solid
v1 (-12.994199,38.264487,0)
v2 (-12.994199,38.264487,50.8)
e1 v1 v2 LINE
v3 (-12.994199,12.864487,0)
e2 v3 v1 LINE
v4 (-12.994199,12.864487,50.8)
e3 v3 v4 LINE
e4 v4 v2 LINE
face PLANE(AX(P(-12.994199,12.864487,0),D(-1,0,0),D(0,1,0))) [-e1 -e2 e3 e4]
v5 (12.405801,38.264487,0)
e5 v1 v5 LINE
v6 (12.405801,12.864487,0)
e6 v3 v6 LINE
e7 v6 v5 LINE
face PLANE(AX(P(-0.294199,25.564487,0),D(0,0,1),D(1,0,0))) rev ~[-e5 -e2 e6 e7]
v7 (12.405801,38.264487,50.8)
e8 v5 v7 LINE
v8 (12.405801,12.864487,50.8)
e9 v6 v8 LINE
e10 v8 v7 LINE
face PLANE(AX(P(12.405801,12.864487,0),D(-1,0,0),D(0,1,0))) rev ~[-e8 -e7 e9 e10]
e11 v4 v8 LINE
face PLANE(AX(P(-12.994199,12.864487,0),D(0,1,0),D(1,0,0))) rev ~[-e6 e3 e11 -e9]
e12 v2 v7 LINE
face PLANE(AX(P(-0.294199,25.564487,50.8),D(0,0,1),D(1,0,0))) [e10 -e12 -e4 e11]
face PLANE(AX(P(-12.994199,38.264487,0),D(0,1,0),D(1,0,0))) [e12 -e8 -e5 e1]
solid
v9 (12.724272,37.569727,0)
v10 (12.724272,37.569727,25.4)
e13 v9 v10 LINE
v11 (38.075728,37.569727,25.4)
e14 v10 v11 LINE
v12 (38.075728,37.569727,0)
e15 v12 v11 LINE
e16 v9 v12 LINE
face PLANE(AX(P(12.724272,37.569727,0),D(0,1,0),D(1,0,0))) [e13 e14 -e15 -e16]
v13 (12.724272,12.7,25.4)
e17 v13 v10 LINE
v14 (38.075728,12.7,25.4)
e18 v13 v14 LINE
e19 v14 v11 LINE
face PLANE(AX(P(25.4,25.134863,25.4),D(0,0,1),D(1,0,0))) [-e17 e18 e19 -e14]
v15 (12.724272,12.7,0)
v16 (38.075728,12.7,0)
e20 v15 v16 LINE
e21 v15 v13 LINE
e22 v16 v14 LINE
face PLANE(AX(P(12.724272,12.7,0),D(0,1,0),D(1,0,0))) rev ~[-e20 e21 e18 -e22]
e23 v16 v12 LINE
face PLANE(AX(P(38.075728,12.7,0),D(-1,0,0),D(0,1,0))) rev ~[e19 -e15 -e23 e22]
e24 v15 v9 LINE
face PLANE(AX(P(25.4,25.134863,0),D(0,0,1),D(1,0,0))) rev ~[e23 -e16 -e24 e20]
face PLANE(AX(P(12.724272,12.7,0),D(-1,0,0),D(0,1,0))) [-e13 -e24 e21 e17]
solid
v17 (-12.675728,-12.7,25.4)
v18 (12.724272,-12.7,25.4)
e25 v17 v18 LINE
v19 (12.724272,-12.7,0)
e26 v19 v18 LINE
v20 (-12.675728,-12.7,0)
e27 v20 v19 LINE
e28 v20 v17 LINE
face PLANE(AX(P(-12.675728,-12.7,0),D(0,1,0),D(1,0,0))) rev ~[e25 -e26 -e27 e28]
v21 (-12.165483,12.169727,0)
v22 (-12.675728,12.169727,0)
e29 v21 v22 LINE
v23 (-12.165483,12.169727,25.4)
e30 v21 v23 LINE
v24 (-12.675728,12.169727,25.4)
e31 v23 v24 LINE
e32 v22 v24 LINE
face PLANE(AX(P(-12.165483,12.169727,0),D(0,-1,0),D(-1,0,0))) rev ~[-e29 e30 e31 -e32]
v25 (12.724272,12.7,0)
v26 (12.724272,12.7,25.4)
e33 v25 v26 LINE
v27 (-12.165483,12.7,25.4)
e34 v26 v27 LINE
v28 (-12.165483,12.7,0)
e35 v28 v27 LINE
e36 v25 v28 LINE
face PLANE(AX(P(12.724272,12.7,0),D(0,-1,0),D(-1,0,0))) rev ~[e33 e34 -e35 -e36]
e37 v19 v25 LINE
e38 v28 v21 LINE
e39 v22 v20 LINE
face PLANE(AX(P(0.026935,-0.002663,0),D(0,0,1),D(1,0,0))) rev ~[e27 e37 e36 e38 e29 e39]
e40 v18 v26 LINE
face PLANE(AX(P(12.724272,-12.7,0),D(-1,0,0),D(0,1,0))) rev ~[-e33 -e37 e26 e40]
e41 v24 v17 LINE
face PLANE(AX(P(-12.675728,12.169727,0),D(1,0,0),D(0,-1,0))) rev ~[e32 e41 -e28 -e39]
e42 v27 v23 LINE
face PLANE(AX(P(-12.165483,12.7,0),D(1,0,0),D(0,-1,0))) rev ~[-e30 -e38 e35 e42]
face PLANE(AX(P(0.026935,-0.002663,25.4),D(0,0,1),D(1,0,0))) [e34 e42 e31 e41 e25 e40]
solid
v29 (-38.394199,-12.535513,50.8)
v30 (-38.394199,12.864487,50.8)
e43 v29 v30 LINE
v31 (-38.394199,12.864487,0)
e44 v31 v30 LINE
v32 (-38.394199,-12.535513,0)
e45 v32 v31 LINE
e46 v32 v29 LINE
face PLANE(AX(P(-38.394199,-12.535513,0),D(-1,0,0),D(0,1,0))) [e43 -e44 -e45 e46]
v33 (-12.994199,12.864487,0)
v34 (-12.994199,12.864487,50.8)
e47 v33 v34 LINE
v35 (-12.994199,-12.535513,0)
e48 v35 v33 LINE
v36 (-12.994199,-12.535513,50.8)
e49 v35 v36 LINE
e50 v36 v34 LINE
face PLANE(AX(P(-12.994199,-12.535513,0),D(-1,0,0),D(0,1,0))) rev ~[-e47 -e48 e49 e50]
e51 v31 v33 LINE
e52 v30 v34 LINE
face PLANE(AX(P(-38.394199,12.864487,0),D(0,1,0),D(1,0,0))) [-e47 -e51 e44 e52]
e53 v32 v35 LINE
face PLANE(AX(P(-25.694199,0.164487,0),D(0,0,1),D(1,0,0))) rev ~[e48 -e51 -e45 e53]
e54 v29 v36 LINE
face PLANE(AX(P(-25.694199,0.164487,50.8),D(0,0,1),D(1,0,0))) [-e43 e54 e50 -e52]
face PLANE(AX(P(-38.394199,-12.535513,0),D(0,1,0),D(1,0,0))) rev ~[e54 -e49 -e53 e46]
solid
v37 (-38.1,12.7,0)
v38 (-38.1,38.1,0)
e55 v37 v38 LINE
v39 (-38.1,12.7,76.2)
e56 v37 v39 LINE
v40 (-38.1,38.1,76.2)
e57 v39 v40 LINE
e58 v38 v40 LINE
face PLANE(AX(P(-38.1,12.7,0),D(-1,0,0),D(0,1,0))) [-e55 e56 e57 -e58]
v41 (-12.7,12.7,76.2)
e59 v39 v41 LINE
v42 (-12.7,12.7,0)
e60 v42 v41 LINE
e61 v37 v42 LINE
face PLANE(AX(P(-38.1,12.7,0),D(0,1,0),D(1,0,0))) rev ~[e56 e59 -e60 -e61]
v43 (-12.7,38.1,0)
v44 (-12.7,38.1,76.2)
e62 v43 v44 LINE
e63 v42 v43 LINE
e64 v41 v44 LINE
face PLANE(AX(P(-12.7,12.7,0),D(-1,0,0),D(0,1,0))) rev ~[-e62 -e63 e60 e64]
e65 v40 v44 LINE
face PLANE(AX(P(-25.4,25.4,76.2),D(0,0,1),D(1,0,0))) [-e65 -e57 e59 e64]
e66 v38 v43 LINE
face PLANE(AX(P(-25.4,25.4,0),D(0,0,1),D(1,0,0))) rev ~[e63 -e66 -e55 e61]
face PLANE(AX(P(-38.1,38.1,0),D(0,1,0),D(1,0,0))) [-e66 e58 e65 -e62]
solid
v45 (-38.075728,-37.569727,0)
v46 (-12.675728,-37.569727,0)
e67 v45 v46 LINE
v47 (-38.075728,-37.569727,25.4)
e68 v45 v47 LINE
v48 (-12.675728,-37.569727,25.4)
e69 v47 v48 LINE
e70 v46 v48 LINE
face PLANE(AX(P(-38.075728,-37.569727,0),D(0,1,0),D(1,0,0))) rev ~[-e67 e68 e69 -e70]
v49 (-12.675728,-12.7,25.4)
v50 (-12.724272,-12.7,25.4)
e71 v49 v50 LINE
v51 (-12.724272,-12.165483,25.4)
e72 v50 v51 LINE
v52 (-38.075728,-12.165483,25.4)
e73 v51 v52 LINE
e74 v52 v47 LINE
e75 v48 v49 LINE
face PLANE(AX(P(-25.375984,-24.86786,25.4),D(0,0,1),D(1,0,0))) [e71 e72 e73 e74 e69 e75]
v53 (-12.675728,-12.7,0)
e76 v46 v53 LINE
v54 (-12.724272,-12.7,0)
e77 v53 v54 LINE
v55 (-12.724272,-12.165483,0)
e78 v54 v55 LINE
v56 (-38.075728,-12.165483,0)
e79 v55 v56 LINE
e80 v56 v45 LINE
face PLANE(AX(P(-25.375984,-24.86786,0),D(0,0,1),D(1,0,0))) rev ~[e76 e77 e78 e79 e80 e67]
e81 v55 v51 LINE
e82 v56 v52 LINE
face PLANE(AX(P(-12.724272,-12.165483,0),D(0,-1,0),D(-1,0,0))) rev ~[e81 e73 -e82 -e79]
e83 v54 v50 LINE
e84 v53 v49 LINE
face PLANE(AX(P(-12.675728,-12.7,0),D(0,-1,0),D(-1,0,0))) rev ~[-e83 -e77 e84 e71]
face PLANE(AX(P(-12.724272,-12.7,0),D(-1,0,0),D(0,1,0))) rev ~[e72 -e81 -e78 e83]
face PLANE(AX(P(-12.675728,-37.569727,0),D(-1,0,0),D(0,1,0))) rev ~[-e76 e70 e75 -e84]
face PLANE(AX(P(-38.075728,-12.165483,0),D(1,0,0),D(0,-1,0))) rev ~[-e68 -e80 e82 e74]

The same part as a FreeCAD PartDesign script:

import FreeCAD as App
import Part
import Sketcher
from FreeCAD import Vector
Q = App.Units.Quantity

doc = App.newDocument("Part")
body = doc.addObject("PartDesign::Body", "Body")

sketch1 = body.newObject("Sketcher::SketchObject", "Sketch")
sketch1.AttachmentSupport = (doc.getObject("XY_Plane"), [""])
sketch1.MapMode = "FlatFace"
sketch1.addGeometry([
    Part.LineSegment(Vector(12.724272, 37.569727, 0), Vector(12.724272, 12.7, 0)),
    Part.LineSegment(Vector(12.724272, 12.7, 0), Vector(38.075728, 12.7, 0)),
    Part.LineSegment(Vector(38.075728, 12.7, 0), Vector(38.075728, 37.569727, 0)),
    Part.LineSegment(Vector(38.075728, 37.569727, 0), Vector(12.724272, 37.569727, 0)),
], False)
sketch1.addConstraint([
    Sketcher.Constraint("Coincident", 0, 2, 1, 1),
    Sketcher.Constraint("Coincident", 1, 2, 2, 1),
    Sketcher.Constraint("Coincident", 2, 2, 3, 1),
    Sketcher.Constraint("Coincident", 3, 2, 0, 1),
    Sketcher.Constraint("Vertical", 0),
    Sketcher.Constraint("Horizontal", 1),
    Sketcher.Constraint("Vertical", 2),
    Sketcher.Constraint("Horizontal", 3),
    Sketcher.Constraint("DistanceY", -1, 1, 0, 2, Q("0.5 in")),
    Sketcher.Constraint("DistanceX", 1, 1, 1, 2, Q("25.351457 mm")),
    Sketcher.Constraint("DistanceY", 0, 2, 0, 1, Q("24.869727 mm")),
    Sketcher.Constraint("DistanceX", -1, 1, 0, 2, Q("12.724272 mm")),
])
pad1 = body.newObject("PartDesign::Pad", "Pad")
pad1.Profile = sketch1
pad1.Length = Q("1 in")
body2 = doc.addObject("PartDesign::Body", "Body001")

sketch2 = body2.newObject("Sketcher::SketchObject", "Sketch001")
sketch2.AttachmentSupport = (doc.getObject("XY_Plane001"), [""])
sketch2.MapMode = "FlatFace"
sketch2.addGeometry([
    Part.LineSegment(Vector(-12.724272, -12.165483, 0), Vector(-38.075728, -12.165483, 0)),
    Part.LineSegment(Vector(-38.075728, -12.165483, 0), Vector(-38.075728, -37.569727, 0)),
    Part.LineSegment(Vector(-38.075728, -37.569727, 0), Vector(-12.675728, -37.569727, 0)),
    Part.LineSegment(Vector(-12.675728, -37.569727, 0), Vector(-12.675728, -12.7, 0)),
    Part.LineSegment(Vector(-12.675728, -12.7, 0), Vector(-12.724272, -12.7, 0)),
    Part.LineSegment(Vector(-12.724272, -12.7, 0), Vector(-12.724272, -12.165483, 0)),
], False)
sketch2.addConstraint([
    Sketcher.Constraint("Coincident", 0, 2, 1, 1),
    Sketcher.Constraint("Coincident", 1, 2, 2, 1),
    Sketcher.Constraint("Coincident", 2, 2, 3, 1),
    Sketcher.Constraint("Coincident", 3, 2, 4, 1),
    Sketcher.Constraint("Coincident", 4, 2, 5, 1),
    Sketcher.Constraint("Coincident", 5, 2, 0, 1),
    Sketcher.Constraint("Horizontal", 0),
    Sketcher.Constraint("Vertical", 1),
    Sketcher.Constraint("Horizontal", 2),
    Sketcher.Constraint("Vertical", 3),
    Sketcher.Constraint("Horizontal", 4),
    Sketcher.Constraint("Vertical", 5),
    Sketcher.Constraint("DistanceX", 2, 1, 2, 2, Q("1 in")),
    Sketcher.Constraint("DistanceY", 3, 2, -1, 1, Q("0.5 in")),
    Sketcher.Constraint("DistanceX", 0, 2, 0, 1, Q("25.351457 mm")),
    Sketcher.Constraint("DistanceY", 1, 2, 1, 1, Q("25.404243 mm")),
    Sketcher.Constraint("DistanceY", 3, 1, 3, 2, Q("24.869727 mm")),
    Sketcher.Constraint("DistanceX", 0, 2, -1, 1, Q("38.075728 mm")),
])
pad2 = body2.newObject("PartDesign::Pad", "Pad001")
pad2.Profile = sketch2
pad2.Length = Q("1 in")
body3 = doc.addObject("PartDesign::Body", "Body002")

sketch3 = body3.newObject("Sketcher::SketchObject", "Sketch002")
sketch3.AttachmentSupport = (doc.getObject("XY_Plane002"), [""])
sketch3.MapMode = "FlatFace"
sketch3.addGeometry([
    Part.LineSegment(Vector(12.724272, 12.7, 0), Vector(-12.165483, 12.7, 0)),
    Part.LineSegment(Vector(-12.165483, 12.7, 0), Vector(-12.165483, 12.169727, 0)),
    Part.LineSegment(Vector(-12.165483, 12.169727, 0), Vector(-12.675728, 12.169727, 0)),
    Part.LineSegment(Vector(-12.675728, 12.169727, 0), Vector(-12.675728, -12.7, 0)),
    Part.LineSegment(Vector(-12.675728, -12.7, 0), Vector(12.724272, -12.7, 0)),
    Part.LineSegment(Vector(12.724272, -12.7, 0), Vector(12.724272, 12.7, 0)),
], False)
sketch3.addConstraint([
    Sketcher.Constraint("Coincident", 0, 2, 1, 1),
    Sketcher.Constraint("Coincident", 1, 2, 2, 1),
    Sketcher.Constraint("Coincident", 2, 2, 3, 1),
    Sketcher.Constraint("Coincident", 3, 2, 4, 1),
    Sketcher.Constraint("Coincident", 4, 2, 5, 1),
    Sketcher.Constraint("Coincident", 5, 2, 0, 1),
    Sketcher.Constraint("Horizontal", 0),
    Sketcher.Constraint("Vertical", 1),
    Sketcher.Constraint("Horizontal", 2),
    Sketcher.Constraint("Vertical", 3),
    Sketcher.Constraint("Horizontal", 4),
    Sketcher.Constraint("Vertical", 5),
    Sketcher.Constraint("Equal", 4, 5),
    Sketcher.Constraint("DistanceX", 4, 1, 4, 2, Q("1 in")),
    Sketcher.Constraint("DistanceY", -1, 1, 0, 2, Q("0.5 in")),
    Sketcher.Constraint("DistanceX", 0, 2, 0, 1, Q("24.889755 mm")),
    Sketcher.Constraint("DistanceY", 1, 2, 1, 1, Q("0.530273 mm")),
    Sketcher.Constraint("DistanceX", 2, 2, -1, 1, Q("12.675728 mm")),
])
pad3 = body3.newObject("PartDesign::Pad", "Pad002")
pad3.Profile = sketch3
pad3.Length = Q("1 in")
body4 = doc.addObject("PartDesign::Body", "Body003")

sketch4 = body4.newObject("Sketcher::SketchObject", "Sketch003")
sketch4.AttachmentSupport = (doc.getObject("XY_Plane003"), [""])
sketch4.MapMode = "FlatFace"
sketch4.addGeometry([
    Part.LineSegment(Vector(-38.394199, 12.864487, 0), Vector(-38.394199, -12.535513, 0)),
    Part.LineSegment(Vector(-38.394199, -12.535513, 0), Vector(-12.994199, -12.535513, 0)),
    Part.LineSegment(Vector(-12.994199, -12.535513, 0), Vector(-12.994199, 12.864487, 0)),
    Part.LineSegment(Vector(-12.994199, 12.864487, 0), Vector(-38.394199, 12.864487, 0)),
], False)
sketch4.addConstraint([
    Sketcher.Constraint("Coincident", 0, 2, 1, 1),
    Sketcher.Constraint("Coincident", 1, 2, 2, 1),
    Sketcher.Constraint("Coincident", 2, 2, 3, 1),
    Sketcher.Constraint("Coincident", 3, 2, 0, 1),
    Sketcher.Constraint("Vertical", 0),
    Sketcher.Constraint("Horizontal", 1),
    Sketcher.Constraint("Vertical", 2),
    Sketcher.Constraint("Horizontal", 3),
    Sketcher.Constraint("Equal", 3, 0),
    Sketcher.Constraint("DistanceX", 1, 1, 1, 2, Q("1 in")),
    Sketcher.Constraint("DistanceX", 0, 2, -1, 1, Q("38.394199 mm")),
    Sketcher.Constraint("DistanceY", 0, 2, -1, 1, Q("12.535513 mm")),
])
pad4 = body4.newObject("PartDesign::Pad", "Pad003")
pad4.Profile = sketch4
pad4.Length = Q("2 in")
body5 = doc.addObject("PartDesign::Body", "Body004")

sketch5 = body5.newObject("Sketcher::SketchObject", "Sketch004")
sketch5.AttachmentSupport = (doc.getObject("XY_Plane004"), [""])
sketch5.MapMode = "FlatFace"
sketch5.addGeometry([
    Part.LineSegment(Vector(-12.994199, 38.264487, 0), Vector(-12.994199, 12.864487, 0)),
    Part.LineSegment(Vector(-12.994199, 12.864487, 0), Vector(12.405801, 12.864487, 0)),
    Part.LineSegment(Vector(12.405801, 12.864487, 0), Vector(12.405801, 38.264487, 0)),
    Part.LineSegment(Vector(12.405801, 38.264487, 0), Vector(-12.994199, 38.264487, 0)),
], False)
sketch5.addConstraint([
    Sketcher.Constraint("Coincident", 0, 2, 1, 1),
    Sketcher.Constraint("Coincident", 1, 2, 2, 1),
    Sketcher.Constraint("Coincident", 2, 2, 3, 1),
    Sketcher.Constraint("Coincident", 3, 2, 0, 1),
    Sketcher.Constraint("Vertical", 0),
    Sketcher.Constraint("Horizontal", 1),
    Sketcher.Constraint("Vertical", 2),
    Sketcher.Constraint("Horizontal", 3),
    Sketcher.Constraint("Equal", 3, 0),
    Sketcher.Constraint("DistanceX", 1, 1, 1, 2, Q("1 in")),
    Sketcher.Constraint("DistanceX", 0, 2, -1, 1, Q("12.994199 mm")),
    Sketcher.Constraint("DistanceY", -1, 1, 0, 2, Q("12.864487 mm")),
])
pad5 = body5.newObject("PartDesign::Pad", "Pad004")
pad5.Profile = sketch5
pad5.Length = Q("2 in")
body6 = doc.addObject("PartDesign::Body", "Body005")

sketch6 = body6.newObject("Sketcher::SketchObject", "Sketch005")
sketch6.AttachmentSupport = (doc.getObject("XY_Plane005"), [""])
sketch6.MapMode = "FlatFace"
sketch6.addGeometry([
    Part.LineSegment(Vector(-38.1, 38.1, 0), Vector(-38.1, 12.7, 0)),
    Part.LineSegment(Vector(-38.1, 12.7, 0), Vector(-12.7, 12.7, 0)),
    Part.LineSegment(Vector(-12.7, 12.7, 0), Vector(-12.7, 38.1, 0)),
    Part.LineSegment(Vector(-12.7, 38.1, 0), Vector(-38.1, 38.1, 0)),
], False)
sketch6.addConstraint([
    Sketcher.Constraint("Coincident", 0, 2, 1, 1),
    Sketcher.Constraint("Coincident", 1, 2, 2, 1),
    Sketcher.Constraint("Coincident", 2, 2, 3, 1),
    Sketcher.Constraint("Coincident", 3, 2, 0, 1),
    Sketcher.Constraint("Vertical", 0),
    Sketcher.Constraint("Horizontal", 1),
    Sketcher.Constraint("Vertical", 2),
    Sketcher.Constraint("Horizontal", 3),
    Sketcher.Constraint("Equal", 3, 0),
    Sketcher.Constraint("DistanceX", 1, 1, 1, 2, Q("1 in")),
    Sketcher.Constraint("DistanceX", 0, 2, -1, 1, Q("1.5 in")),
    Sketcher.Constraint("DistanceY", -1, 1, 0, 2, Q("0.5 in")),
])
pad6 = body6.newObject("PartDesign::Pad", "Pad005")
pad6.Profile = sketch6
pad6.Length = Q("3 in")

doc.recompute()
